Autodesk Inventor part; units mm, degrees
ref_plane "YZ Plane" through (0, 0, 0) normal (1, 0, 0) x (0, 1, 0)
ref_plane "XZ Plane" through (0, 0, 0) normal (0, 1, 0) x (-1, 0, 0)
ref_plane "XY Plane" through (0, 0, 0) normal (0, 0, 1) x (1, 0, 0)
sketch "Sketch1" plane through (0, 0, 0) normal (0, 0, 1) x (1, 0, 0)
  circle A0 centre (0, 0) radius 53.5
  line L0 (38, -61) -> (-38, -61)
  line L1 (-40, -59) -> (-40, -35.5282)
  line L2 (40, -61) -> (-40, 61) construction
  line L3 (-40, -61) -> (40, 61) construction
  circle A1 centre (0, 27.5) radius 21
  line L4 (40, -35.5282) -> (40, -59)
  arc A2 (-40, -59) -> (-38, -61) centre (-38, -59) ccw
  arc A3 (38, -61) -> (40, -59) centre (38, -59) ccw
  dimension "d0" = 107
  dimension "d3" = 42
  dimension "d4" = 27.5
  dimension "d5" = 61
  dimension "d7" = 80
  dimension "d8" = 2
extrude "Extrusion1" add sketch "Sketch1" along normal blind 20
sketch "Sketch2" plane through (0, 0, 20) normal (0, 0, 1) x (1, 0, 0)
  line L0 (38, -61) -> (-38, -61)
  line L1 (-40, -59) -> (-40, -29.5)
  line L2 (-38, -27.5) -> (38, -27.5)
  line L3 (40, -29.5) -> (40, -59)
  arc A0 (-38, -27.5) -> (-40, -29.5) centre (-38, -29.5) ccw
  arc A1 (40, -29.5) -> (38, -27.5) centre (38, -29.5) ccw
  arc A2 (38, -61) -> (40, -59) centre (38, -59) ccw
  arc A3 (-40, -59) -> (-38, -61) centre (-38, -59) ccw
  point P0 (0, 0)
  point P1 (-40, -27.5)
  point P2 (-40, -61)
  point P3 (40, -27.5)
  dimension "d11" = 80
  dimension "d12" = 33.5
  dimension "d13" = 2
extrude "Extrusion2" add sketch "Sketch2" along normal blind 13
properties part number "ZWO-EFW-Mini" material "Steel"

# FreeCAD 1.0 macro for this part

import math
import FreeCAD as App
import Part
import Sketcher
from FreeCAD import Vector
Q = App.Units.Quantity

doc = App.newDocument("Part")
params = doc.addObject("Spreadsheet::Sheet", "Params")
for row, (alias, value) in enumerate([
    ("sketch1_diameter", "42 mm"),
    ("sketch1_radius", "2 mm"),
    ("sketch1_radius2", "53.5 mm"),
    ("sketch1_width", "76 mm"),
    ("pad1_length", "20 mm"),
    ("sketch2_radius", "2 mm"),
    ("sketch2_width", "76 mm"),
    ("pad2_length", "13 mm"),
], start=1):
    params.set(f"A{row}", alias)
    params.set(f"B{row}", "=" + value)
    params.setAlias(f"B{row}", alias)

body = doc.addObject("PartDesign::Body", "Body")

sketch1 = body.newObject("Sketcher::SketchObject", "Sketch")
sketch1.AttachmentSupport = (doc.getObject("XY_Plane"), [""])
sketch1.MapMode = "FlatFace"
sketch1.addGeometry([
    Part.ArcOfCircle(Part.Circle(Vector(0, 0, 0), Vector(0, 0, 1), 53.5), math.radians(-42), math.radians(222)),
    Part.LineSegment(Vector(-40, -35.5, 0), Vector(-40, -59, 0)),
    Part.ArcOfCircle(Part.Circle(Vector(-38, -59, 0), Vector(0, 0, 1), 2), math.radians(180), math.radians(270)),
    Part.LineSegment(Vector(-38, -61, 0), Vector(38, -61, 0)),
    Part.ArcOfCircle(Part.Circle(Vector(38, -59, 0), Vector(0, 0, 1), 2), math.radians(-90), math.radians(0)),
    Part.LineSegment(Vector(40, -59, 0), Vector(40, -35.5, 0)),
    Part.Circle(Vector(0, 27.5, 0), Vector(0, 0, 1), 21),
], False)
sketch1.addConstraint([
    Sketcher.Constraint("Coincident", 0, 2, 1, 1),
    Sketcher.Constraint("Tangent", 1, 2, 2, 1),
    Sketcher.Constraint("Tangent", 2, 2, 3, 1),
    Sketcher.Constraint("Tangent", 3, 2, 4, 1),
    Sketcher.Constraint("Tangent", 4, 2, 5, 1),
    Sketcher.Constraint("Coincident", 5, 2, 0, 1),
    Sketcher.Constraint("Vertical", 1),
    Sketcher.Constraint("Horizontal", 3),
    Sketcher.Constraint("Vertical", 5),
    Sketcher.Constraint("Coincident", 0, 3, -1, 1),
    Sketcher.Constraint("Equal", 2, 4),
    Sketcher.Constraint("PointOnObject", 6, 3, -2),
    Sketcher.Constraint("Horizontal", 0, 2, 5, 2),
    Sketcher.Constraint("Diameter", 6, Q("42 mm")),
    Sketcher.Constraint("Radius", 2, Q("2 mm")),
    Sketcher.Constraint("Radius", 0, Q("53.5 mm")),
    Sketcher.Constraint("DistanceY", 2, 2, -1, 1, Q("61 mm")),
    Sketcher.Constraint("DistanceY", -1, 1, 6, 3, Q("27.5 mm")),
    Sketcher.Constraint("DistanceX", 3, 1, 3, 2, Q("76 mm")),
])
sketch1.setExpression("Constraints[13]", "Params.sketch1_diameter")
sketch1.setExpression("Constraints[14]", "Params.sketch1_radius")
sketch1.setExpression("Constraints[15]", "Params.sketch1_radius2")
sketch1.setExpression("Constraints[18]", "Params.sketch1_width")
pad1 = body.newObject("PartDesign::Pad", "Pad")
pad1.Profile = sketch1
pad1.setExpression("Length", "Params.pad1_length")

sketch2 = body.newObject("Sketcher::SketchObject", "Sketch001")
sketch2.AttachmentSupport = (doc.getObject("XY_Plane"), [""])
sketch2.MapMode = "FlatFace"
sketch2.AttachmentOffset = App.Placement(Vector(0, 0, 20), App.Rotation())
sketch2.addGeometry([
    Part.LineSegment(Vector(-38, -61, 0), Vector(38, -61, 0)),
    Part.ArcOfCircle(Part.Circle(Vector(38, -59, 0), Vector(0, 0, 1), 2), math.radians(-90), math.radians(0)),
    Part.LineSegment(Vector(40, -59, 0), Vector(40, -29.5, 0)),
    Part.ArcOfCircle(Part.Circle(Vector(38, -29.5, 0), Vector(0, 0, 1), 2), math.radians(0), math.radians(90)),
    Part.LineSegment(Vector(38, -27.5, 0), Vector(-38, -27.5, 0)),
    Part.ArcOfCircle(Part.Circle(Vector(-38, -29.5, 0), Vector(0, 0, 1), 2), math.radians(90), math.radians(180)),
    Part.LineSegment(Vector(-40, -29.5, 0), Vector(-40, -59, 0)),
    Part.ArcOfCircle(Part.Circle(Vector(-38, -59, 0), Vector(0, 0, 1), 2), math.radians(180), math.radians(270)),
], False)
sketch2.addConstraint([
    Sketcher.Constraint("Tangent", 0, 2, 1, 1),
    Sketcher.Constraint("Tangent", 1, 2, 2, 1),
    Sketcher.Constraint("Tangent", 2, 2, 3, 1),
    Sketcher.Constraint("Tangent", 3, 2, 4, 1),
    Sketcher.Constraint("Tangent", 4, 2, 5, 1),
    Sketcher.Constraint("Tangent", 5, 2, 6, 1),
    Sketcher.Constraint("Tangent", 6, 2, 7, 1),
    Sketcher.Constraint("Tangent", 7, 2, 0, 1),
    Sketcher.Constraint("Horizontal", 0),
    Sketcher.Constraint("Vertical", 2),
    Sketcher.Constraint("Horizontal", 4),
    Sketcher.Constraint("Vertical", 6),
    Sketcher.Constraint("Equal", 1, 3),
    Sketcher.Constraint("Equal", 3, 5),
    Sketcher.Constraint("Equal", 5, 7),
    Sketcher.Constraint("Radius", 1, Q("2 mm")),
    Sketcher.Constraint("DistanceY", 0, 2, 3, 2, Q("33.5 mm")),
    Sketcher.Constraint("DistanceX", 0, 1, 0, 2, Q("76 mm")),
    Sketcher.Constraint("DistanceX", -1, 1, 1, 3, Q("38 mm")),
    Sketcher.Constraint("DistanceY", 1, 3, -1, 1, Q("59 mm")),
])
sketch2.setExpression("Constraints[15]", "Params.sketch2_radius")
sketch2.setExpression("Constraints[17]", "Params.sketch2_width")
pad2 = body.newObject("PartDesign::Pad", "Pad001")
pad2.Profile = sketch2
pad2.setExpression("Length", "Params.pad2_length")

doc.recompute()
